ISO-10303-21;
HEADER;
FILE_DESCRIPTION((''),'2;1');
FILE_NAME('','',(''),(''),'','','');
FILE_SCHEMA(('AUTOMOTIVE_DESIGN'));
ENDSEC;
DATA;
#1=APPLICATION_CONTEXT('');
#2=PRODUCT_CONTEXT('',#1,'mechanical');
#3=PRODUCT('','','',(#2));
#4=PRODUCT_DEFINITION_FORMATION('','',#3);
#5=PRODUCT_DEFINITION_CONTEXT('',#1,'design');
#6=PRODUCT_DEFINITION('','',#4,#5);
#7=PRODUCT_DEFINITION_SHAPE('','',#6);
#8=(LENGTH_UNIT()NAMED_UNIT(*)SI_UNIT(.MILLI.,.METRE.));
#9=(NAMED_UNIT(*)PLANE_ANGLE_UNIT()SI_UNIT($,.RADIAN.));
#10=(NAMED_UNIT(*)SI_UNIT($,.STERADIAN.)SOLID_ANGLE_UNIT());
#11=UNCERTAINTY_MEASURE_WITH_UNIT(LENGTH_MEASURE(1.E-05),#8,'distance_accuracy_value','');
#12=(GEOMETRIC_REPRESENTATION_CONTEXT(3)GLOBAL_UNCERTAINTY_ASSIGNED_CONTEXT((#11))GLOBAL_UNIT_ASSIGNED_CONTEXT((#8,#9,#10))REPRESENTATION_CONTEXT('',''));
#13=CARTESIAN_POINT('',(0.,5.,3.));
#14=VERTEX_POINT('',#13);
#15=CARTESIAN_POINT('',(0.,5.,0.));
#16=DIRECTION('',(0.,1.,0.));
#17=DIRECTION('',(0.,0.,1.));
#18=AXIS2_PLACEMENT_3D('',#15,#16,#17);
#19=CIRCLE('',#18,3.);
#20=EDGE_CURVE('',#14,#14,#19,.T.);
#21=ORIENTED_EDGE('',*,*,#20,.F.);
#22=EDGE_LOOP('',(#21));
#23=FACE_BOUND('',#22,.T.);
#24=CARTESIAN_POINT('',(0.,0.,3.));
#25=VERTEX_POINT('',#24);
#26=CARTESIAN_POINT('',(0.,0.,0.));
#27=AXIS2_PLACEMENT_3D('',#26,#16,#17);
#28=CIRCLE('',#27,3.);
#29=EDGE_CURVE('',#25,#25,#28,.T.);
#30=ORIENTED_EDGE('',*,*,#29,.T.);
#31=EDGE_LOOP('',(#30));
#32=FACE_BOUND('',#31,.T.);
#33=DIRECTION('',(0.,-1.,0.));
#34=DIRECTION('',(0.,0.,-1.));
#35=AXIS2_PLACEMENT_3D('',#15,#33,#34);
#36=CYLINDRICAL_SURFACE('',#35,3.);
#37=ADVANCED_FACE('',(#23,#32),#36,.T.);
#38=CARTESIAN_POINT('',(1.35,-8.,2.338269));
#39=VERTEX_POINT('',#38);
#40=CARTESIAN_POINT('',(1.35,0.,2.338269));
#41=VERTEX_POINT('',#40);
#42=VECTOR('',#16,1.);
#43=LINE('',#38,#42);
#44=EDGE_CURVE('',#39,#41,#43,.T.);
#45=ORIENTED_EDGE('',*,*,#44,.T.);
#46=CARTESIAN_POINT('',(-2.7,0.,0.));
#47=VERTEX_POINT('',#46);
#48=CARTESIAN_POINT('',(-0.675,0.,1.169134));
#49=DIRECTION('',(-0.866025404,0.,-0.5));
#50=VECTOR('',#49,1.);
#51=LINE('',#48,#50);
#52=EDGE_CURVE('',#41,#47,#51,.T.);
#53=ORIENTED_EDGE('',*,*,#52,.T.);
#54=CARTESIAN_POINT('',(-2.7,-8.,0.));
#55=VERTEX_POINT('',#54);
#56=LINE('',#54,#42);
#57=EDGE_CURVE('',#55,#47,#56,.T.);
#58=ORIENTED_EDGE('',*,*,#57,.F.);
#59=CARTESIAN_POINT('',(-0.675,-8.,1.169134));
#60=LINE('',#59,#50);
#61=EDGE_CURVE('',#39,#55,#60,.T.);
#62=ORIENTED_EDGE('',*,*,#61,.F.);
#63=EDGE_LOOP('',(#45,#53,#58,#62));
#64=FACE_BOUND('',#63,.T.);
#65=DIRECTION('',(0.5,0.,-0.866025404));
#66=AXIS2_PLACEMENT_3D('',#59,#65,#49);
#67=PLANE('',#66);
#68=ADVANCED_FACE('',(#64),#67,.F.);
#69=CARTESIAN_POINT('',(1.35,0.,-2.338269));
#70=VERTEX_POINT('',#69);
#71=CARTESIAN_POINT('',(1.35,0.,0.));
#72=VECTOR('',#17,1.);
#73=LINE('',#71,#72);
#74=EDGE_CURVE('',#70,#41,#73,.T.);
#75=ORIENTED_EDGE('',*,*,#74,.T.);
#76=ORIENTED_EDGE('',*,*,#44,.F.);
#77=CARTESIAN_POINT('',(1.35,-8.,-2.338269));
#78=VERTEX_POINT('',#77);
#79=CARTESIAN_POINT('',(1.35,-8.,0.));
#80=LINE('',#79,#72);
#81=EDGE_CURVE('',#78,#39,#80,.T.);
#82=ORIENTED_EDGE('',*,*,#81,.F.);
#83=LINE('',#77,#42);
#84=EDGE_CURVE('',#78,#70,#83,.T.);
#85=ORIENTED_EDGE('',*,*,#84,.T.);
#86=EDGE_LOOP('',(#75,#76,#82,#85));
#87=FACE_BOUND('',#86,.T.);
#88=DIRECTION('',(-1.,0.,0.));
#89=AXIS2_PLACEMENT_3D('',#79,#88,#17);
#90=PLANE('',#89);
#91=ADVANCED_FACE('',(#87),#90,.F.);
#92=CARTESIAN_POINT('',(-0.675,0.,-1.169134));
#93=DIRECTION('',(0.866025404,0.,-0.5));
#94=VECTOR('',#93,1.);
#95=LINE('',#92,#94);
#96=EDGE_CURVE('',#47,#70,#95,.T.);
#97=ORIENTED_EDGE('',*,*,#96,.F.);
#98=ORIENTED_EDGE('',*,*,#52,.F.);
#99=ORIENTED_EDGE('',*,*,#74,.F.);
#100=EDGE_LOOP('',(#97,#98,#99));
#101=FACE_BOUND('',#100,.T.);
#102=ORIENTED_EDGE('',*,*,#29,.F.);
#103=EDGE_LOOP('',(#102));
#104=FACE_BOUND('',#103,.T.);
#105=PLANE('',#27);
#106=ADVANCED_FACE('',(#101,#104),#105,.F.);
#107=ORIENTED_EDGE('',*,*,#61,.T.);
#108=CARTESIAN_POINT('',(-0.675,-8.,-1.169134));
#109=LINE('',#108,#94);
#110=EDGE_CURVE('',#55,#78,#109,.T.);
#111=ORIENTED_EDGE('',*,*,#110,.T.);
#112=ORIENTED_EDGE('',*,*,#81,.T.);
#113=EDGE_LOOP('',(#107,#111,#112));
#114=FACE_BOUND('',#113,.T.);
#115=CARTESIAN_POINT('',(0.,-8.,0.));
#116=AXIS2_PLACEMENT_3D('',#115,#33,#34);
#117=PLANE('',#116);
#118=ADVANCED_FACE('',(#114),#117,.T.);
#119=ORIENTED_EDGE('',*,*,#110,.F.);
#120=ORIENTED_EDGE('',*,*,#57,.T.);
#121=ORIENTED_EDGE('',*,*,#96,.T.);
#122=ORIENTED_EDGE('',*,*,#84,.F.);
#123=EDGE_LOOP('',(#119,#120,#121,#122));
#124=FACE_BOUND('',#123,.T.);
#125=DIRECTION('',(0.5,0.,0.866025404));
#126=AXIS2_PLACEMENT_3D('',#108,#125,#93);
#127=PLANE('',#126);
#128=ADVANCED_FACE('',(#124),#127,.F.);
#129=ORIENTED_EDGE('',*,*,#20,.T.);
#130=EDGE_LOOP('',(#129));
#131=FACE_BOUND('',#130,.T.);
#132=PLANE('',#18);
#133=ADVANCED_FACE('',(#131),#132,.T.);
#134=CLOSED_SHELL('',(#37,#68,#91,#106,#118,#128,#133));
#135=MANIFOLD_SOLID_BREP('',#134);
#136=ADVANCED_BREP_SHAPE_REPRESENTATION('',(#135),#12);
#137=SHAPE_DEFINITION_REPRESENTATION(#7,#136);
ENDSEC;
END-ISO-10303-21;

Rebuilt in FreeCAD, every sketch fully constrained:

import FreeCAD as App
import Part
import Sketcher
Q = App.Units.Quantity

doc = App.newDocument("Part")
body = doc.addObject("PartDesign::Body", "Body")

# Sketch on XZ plane
sketch1 = doc.addObject("Sketcher::SketchObject", "Sketch")
body.addObject(sketch1)
sketch1.AttachmentSupport = (doc.XZ_Plane, [""])
sketch1.MapMode = "FlatFace"
sketch1.addGeometry(Part.Circle(App.Vector(0, 0, 0), App.Vector(0, 0, 1), 3), False)
sketch1.addConstraint(Sketcher.Constraint("Coincident", 0, 3, -1, 1))
sketch1.addConstraint(Sketcher.Constraint("Diameter", 0, Q("6 mm")))
pad1 = doc.addObject("PartDesign::Pad", "Pad")
body.addObject(pad1)
pad1.Profile = sketch1
pad1.Length = 5
pad1.Reversed = True

# Sketch on XZ plane
sketch2 = doc.addObject("Sketcher::SketchObject", "Sketch001")
body.addObject(sketch2)
sketch2.AttachmentSupport = (doc.XZ_Plane, [""])
sketch2.MapMode = "FlatFace"
sketch2.addGeometry(Part.LineSegment(App.Vector(1.35, -2.338269, 0), App.Vector(1.35, 2.338269, 0)), False)
sketch2.addGeometry(Part.LineSegment(App.Vector(1.35, 2.338269, 0), App.Vector(-2.7, 0, 0)), False)
sketch2.addGeometry(Part.LineSegment(App.Vector(-2.7, 0, 0), App.Vector(1.35, -2.338269, 0)), False)
sketch2.addConstraint(Sketcher.Constraint("Coincident", 0, 2, 1, 1))
sketch2.addConstraint(Sketcher.Constraint("Coincident", 1, 2, 2, 1))
sketch2.addConstraint(Sketcher.Constraint("Coincident", 2, 2, 0, 1))
sketch2.addConstraint(Sketcher.Constraint("Vertical", 0))
sketch2.addConstraint(Sketcher.Constraint("PointOnObject", 1, 2, -1))
sketch2.addConstraint(Sketcher.Constraint("Equal", 1, 2))
sketch2.addConstraint(Sketcher.Constraint("Angle", 1, Q("-150 deg")))
sketch2.addConstraint(Sketcher.Constraint("DistanceX", 1, 2, -1, 1, Q("2.7 mm")))
sketch2.addConstraint(Sketcher.Constraint("DistanceX", -1, 1, 0, 2, Q("1.35 mm")))
pad2 = doc.addObject("PartDesign::Pad", "Pad001")
body.addObject(pad2)
pad2.Profile = sketch2
pad2.Length = 8

doc.recompute()
